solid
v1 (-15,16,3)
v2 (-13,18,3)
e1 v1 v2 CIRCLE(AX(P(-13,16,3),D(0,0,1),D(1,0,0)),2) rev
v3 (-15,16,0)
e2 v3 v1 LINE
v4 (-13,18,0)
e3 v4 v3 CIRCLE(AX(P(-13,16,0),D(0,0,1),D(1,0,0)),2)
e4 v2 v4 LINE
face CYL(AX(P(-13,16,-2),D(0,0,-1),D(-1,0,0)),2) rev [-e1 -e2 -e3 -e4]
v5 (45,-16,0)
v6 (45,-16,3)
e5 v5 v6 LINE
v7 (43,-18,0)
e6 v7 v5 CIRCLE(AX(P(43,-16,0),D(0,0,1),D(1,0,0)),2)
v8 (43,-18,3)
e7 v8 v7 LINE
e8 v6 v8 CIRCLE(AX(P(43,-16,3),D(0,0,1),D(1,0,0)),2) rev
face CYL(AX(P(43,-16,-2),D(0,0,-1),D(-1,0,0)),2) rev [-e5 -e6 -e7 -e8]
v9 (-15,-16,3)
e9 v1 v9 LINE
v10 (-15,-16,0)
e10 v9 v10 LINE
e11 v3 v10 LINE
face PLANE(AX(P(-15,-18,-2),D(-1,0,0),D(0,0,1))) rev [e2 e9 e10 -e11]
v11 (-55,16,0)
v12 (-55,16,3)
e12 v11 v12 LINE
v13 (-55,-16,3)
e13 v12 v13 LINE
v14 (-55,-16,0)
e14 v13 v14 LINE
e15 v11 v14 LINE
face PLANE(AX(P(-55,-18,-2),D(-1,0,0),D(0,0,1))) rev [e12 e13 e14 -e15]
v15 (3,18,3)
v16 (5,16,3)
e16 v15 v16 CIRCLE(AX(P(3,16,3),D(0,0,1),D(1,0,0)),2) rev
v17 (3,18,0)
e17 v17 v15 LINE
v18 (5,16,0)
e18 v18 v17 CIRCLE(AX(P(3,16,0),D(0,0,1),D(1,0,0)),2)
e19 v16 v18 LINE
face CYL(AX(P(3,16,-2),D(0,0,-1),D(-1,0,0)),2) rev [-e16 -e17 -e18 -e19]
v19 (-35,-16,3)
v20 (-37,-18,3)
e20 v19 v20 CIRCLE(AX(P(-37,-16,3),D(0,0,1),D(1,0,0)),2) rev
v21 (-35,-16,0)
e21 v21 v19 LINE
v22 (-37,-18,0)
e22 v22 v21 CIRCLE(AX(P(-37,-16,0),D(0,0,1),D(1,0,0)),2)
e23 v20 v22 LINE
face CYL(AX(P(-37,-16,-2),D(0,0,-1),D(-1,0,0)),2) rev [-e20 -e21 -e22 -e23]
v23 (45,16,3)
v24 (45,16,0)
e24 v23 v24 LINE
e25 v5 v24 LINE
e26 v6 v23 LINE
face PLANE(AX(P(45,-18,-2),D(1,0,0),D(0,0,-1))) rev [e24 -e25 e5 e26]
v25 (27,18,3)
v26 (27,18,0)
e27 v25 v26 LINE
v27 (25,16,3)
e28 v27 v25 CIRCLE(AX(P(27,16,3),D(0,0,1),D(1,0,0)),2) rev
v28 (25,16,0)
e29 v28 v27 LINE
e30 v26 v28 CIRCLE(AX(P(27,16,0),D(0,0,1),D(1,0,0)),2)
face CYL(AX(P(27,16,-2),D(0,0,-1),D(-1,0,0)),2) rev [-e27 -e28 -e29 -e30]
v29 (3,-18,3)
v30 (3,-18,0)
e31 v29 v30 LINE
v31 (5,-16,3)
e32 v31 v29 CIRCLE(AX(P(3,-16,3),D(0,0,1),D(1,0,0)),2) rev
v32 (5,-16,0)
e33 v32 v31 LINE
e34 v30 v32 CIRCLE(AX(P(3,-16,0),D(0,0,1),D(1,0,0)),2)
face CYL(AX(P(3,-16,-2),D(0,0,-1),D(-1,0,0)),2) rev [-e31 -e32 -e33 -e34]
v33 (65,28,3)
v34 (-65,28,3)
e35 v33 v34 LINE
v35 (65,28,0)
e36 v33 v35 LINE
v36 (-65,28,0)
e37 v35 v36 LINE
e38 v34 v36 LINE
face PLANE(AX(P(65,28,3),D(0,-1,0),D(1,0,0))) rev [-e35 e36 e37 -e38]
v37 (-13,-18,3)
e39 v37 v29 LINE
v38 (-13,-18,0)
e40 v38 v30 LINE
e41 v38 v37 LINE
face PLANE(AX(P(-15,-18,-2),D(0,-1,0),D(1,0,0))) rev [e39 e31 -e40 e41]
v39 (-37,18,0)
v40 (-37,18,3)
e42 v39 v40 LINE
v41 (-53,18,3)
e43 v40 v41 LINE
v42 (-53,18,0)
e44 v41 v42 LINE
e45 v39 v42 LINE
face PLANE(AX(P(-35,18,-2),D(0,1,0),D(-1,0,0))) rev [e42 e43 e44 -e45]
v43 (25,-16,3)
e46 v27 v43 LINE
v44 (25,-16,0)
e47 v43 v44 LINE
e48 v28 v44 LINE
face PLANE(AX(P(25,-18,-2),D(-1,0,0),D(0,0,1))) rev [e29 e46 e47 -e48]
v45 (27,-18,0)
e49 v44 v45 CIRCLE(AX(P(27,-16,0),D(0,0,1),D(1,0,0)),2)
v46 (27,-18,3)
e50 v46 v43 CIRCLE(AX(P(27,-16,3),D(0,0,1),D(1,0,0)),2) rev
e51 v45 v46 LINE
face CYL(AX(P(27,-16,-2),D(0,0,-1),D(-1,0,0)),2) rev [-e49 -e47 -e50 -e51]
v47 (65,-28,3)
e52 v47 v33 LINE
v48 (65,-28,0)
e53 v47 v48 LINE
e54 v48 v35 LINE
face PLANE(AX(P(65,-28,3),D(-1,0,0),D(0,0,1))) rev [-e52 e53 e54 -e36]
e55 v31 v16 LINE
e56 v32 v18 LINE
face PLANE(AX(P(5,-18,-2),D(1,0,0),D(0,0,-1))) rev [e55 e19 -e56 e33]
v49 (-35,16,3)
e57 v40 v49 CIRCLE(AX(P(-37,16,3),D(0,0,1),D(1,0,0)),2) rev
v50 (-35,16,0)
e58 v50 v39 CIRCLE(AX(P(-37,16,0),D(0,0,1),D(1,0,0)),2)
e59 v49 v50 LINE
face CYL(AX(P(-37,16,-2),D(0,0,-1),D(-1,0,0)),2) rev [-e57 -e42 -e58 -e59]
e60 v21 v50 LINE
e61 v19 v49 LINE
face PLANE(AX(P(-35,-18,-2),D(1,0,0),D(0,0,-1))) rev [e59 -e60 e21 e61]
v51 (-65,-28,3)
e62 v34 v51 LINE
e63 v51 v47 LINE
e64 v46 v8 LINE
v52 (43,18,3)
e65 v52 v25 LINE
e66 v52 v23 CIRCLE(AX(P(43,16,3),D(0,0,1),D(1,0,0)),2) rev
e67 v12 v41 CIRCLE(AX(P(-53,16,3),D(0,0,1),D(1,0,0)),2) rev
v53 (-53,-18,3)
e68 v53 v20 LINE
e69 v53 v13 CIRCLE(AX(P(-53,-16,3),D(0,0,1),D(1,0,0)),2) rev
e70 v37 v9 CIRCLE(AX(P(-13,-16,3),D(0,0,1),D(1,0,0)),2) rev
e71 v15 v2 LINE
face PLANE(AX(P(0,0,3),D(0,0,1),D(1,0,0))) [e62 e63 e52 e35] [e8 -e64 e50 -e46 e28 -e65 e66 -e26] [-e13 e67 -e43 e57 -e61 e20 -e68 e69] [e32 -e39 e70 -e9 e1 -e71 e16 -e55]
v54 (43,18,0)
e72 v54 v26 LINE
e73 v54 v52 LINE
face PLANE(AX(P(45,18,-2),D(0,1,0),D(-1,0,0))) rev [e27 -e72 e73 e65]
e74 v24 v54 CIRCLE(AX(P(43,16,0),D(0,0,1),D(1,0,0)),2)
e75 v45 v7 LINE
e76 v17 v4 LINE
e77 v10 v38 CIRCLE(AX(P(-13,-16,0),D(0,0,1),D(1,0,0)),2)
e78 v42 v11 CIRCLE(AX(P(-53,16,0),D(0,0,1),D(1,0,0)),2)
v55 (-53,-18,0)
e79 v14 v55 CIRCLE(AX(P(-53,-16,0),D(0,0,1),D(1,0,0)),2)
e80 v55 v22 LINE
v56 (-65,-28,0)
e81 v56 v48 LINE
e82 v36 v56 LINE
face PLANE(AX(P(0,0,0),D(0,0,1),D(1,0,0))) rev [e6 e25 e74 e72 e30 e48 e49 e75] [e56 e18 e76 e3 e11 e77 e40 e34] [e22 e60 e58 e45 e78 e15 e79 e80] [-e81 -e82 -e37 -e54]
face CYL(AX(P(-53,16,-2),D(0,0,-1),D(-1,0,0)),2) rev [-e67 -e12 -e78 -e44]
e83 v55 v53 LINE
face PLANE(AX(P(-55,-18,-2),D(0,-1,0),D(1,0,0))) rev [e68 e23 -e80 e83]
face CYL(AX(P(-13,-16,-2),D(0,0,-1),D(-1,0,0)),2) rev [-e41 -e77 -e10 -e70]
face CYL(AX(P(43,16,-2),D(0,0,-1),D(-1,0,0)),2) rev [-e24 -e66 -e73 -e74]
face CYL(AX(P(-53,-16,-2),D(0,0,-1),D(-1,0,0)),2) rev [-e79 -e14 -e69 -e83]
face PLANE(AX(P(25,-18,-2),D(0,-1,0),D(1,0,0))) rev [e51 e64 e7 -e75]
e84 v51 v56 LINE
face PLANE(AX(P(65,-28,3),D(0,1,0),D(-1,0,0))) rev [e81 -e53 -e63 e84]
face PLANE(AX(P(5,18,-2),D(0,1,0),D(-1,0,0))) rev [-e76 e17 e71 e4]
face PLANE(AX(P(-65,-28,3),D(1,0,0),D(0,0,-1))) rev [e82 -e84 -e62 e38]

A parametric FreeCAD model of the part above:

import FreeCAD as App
import Part
import Sketcher
Q = App.Units.Quantity


def edges_at(feature, points):
    """Names of the edges that pass closest to the given points."""
    edges = feature.Shape.Edges
    near = lambda p: min(range(len(edges)), key=lambda i: edges[i].distToShape(Part.Vertex(*p))[0])
    return sorted({f"Edge{near(p) + 1}" for p in points})


def add_polygon(sketch, points):
    """Adds a closed chain of lines whose ends are joined by coincident constraints."""
    first, n = sketch.GeometryCount, len(points)
    for a, b in zip(points, points[1:] + points[:1]):
        sketch.addGeometry(Part.LineSegment(App.Vector(*a, 0), App.Vector(*b, 0)), False)
    for i in range(n):
        sketch.addConstraint(Sketcher.Constraint("Coincident", first + i, 2, first + (i + 1) % n, 1))

doc = App.newDocument("Part")
params = doc.addObject("Spreadsheet::Sheet", "Params")
for row, (alias, value) in enumerate([
    ("sketch1_width", "130 mm"),
    ("sketch1_height", "56 mm"),
    ("pad1_length", "3 mm"),
    ("sketch2_width", "20 mm"),
    ("sketch2_height", "36 mm"),
    ("pocket1_length", "5 mm"),
    ("fillet_radius", "2 mm"),
], start=1):
    params.set(f"A{row}", alias)
    params.set(f"B{row}", "=" + value)
    params.setAlias(f"B{row}", alias)

body = doc.addObject("PartDesign::Body", "Body")

sketch1 = body.newObject("Sketcher::SketchObject", "Sketch")
sketch1.AttachmentSupport = (doc.getObject("XY_Plane"), [""])
sketch1.MapMode = "FlatFace"
add_polygon(sketch1, [(-65, 28), (-65, -28), (65, -28), (65, 28)])
sketch1.addConstraint([
    Sketcher.Constraint("Vertical", 0),
    Sketcher.Constraint("Horizontal", 1),
    Sketcher.Constraint("Vertical", 2),
    Sketcher.Constraint("Horizontal", 3),
    Sketcher.Constraint("Symmetric", 0, 2, 2, 2, -1, 1),
    Sketcher.Constraint("DistanceX", 1, 1, 1, 2, Q("130 mm")),
    Sketcher.Constraint("DistanceY", 0, 2, 0, 1, Q("56 mm")),
])
sketch1.setExpression("Constraints[9]", "Params.sketch1_width")
sketch1.setExpression("Constraints[10]", "Params.sketch1_height")
pad1 = body.newObject("PartDesign::Pad", "Pad")
pad1.Profile = sketch1
pad1.setExpression("Length", "Params.pad1_length")

sketch2 = body.newObject("Sketcher::SketchObject", "Sketch001")
sketch2.AttachmentSupport = (doc.getObject("XY_Plane"), [""])
sketch2.MapMode = "FlatFace"
sketch2.AttachmentOffset = App.Placement(App.Vector(0, 0, 3), App.Rotation())
add_polygon(sketch2, [(25, 18), (25, -18), (45, -18), (45, 18)])
add_polygon(sketch2, [(-15, 18), (-15, -18), (5, -18), (5, 18)])
add_polygon(sketch2, [(-55, 18), (-55, -18), (-35, -18), (-35, 18)])
sketch2.addConstraint([
    Sketcher.Constraint("Vertical", 0),
    Sketcher.Constraint("Horizontal", 1),
    Sketcher.Constraint("Vertical", 2),
    Sketcher.Constraint("Horizontal", 3),
    Sketcher.Constraint("Vertical", 4),
    Sketcher.Constraint("Horizontal", 5),
    Sketcher.Constraint("Vertical", 6),
    Sketcher.Constraint("Horizontal", 7),
    Sketcher.Constraint("Vertical", 8),
    Sketcher.Constraint("Horizontal", 9),
    Sketcher.Constraint("Vertical", 10),
    Sketcher.Constraint("Horizontal", 11),
    Sketcher.Constraint("Horizontal", 1, 2, 4, 2),
    Sketcher.Constraint("Horizontal", 3, 2, 6, 2),
    Sketcher.Constraint("Horizontal", 5, 2, 8, 2),
    Sketcher.Constraint("Horizontal", 7, 2, 10, 2),
    Sketcher.Constraint("Equal", 3, 5),
    Sketcher.Constraint("Equal", 7, 9),
    Sketcher.Constraint("DistanceX", 1, 1, 1, 2, Q("20 mm")),
    Sketcher.Constraint("DistanceY", 0, 2, 0, 1, Q("36 mm")),
    Sketcher.Constraint("DistanceX", -1, 1, 0, 2, Q("25 mm")),
    Sketcher.Constraint("DistanceY", 0, 2, -1, 1, Q("18 mm")),
    Sketcher.Constraint("DistanceX", 4, 2, -1, 1, Q("15 mm")),
    Sketcher.Constraint("DistanceX", 8, 2, -1, 1, Q("55 mm")),
])
sketch2.setExpression("Constraints[30]", "Params.sketch2_width")
sketch2.setExpression("Constraints[31]", "Params.sketch2_height")
pocket1 = body.newObject("PartDesign::Pocket", "Pocket")
pocket1.Profile = sketch2
pocket1.setExpression("Length", "Params.pocket1_length")
doc.recompute()

fillet = body.newObject("PartDesign::Fillet", "Fillet")
fillet.Base = (pocket1, edges_at(pocket1, [
    (5, -18, 1.5),
    (-15, -18, 1.5),
    (-15, 18, 1.5),
    (5, 18, 1.5),
    (-55, 18, 1.5),
    (-35, 18, 1.5),
    (-35, -18, 1.5),
    (-55, -18, 1.5),
    (25, 18, 1.5),
    (45, 18, 1.5),
    (45, -18, 1.5),
    (25, -18, 1.5),
]))
fillet.setExpression("Radius", "Params.fillet_radius")

doc.recompute()
